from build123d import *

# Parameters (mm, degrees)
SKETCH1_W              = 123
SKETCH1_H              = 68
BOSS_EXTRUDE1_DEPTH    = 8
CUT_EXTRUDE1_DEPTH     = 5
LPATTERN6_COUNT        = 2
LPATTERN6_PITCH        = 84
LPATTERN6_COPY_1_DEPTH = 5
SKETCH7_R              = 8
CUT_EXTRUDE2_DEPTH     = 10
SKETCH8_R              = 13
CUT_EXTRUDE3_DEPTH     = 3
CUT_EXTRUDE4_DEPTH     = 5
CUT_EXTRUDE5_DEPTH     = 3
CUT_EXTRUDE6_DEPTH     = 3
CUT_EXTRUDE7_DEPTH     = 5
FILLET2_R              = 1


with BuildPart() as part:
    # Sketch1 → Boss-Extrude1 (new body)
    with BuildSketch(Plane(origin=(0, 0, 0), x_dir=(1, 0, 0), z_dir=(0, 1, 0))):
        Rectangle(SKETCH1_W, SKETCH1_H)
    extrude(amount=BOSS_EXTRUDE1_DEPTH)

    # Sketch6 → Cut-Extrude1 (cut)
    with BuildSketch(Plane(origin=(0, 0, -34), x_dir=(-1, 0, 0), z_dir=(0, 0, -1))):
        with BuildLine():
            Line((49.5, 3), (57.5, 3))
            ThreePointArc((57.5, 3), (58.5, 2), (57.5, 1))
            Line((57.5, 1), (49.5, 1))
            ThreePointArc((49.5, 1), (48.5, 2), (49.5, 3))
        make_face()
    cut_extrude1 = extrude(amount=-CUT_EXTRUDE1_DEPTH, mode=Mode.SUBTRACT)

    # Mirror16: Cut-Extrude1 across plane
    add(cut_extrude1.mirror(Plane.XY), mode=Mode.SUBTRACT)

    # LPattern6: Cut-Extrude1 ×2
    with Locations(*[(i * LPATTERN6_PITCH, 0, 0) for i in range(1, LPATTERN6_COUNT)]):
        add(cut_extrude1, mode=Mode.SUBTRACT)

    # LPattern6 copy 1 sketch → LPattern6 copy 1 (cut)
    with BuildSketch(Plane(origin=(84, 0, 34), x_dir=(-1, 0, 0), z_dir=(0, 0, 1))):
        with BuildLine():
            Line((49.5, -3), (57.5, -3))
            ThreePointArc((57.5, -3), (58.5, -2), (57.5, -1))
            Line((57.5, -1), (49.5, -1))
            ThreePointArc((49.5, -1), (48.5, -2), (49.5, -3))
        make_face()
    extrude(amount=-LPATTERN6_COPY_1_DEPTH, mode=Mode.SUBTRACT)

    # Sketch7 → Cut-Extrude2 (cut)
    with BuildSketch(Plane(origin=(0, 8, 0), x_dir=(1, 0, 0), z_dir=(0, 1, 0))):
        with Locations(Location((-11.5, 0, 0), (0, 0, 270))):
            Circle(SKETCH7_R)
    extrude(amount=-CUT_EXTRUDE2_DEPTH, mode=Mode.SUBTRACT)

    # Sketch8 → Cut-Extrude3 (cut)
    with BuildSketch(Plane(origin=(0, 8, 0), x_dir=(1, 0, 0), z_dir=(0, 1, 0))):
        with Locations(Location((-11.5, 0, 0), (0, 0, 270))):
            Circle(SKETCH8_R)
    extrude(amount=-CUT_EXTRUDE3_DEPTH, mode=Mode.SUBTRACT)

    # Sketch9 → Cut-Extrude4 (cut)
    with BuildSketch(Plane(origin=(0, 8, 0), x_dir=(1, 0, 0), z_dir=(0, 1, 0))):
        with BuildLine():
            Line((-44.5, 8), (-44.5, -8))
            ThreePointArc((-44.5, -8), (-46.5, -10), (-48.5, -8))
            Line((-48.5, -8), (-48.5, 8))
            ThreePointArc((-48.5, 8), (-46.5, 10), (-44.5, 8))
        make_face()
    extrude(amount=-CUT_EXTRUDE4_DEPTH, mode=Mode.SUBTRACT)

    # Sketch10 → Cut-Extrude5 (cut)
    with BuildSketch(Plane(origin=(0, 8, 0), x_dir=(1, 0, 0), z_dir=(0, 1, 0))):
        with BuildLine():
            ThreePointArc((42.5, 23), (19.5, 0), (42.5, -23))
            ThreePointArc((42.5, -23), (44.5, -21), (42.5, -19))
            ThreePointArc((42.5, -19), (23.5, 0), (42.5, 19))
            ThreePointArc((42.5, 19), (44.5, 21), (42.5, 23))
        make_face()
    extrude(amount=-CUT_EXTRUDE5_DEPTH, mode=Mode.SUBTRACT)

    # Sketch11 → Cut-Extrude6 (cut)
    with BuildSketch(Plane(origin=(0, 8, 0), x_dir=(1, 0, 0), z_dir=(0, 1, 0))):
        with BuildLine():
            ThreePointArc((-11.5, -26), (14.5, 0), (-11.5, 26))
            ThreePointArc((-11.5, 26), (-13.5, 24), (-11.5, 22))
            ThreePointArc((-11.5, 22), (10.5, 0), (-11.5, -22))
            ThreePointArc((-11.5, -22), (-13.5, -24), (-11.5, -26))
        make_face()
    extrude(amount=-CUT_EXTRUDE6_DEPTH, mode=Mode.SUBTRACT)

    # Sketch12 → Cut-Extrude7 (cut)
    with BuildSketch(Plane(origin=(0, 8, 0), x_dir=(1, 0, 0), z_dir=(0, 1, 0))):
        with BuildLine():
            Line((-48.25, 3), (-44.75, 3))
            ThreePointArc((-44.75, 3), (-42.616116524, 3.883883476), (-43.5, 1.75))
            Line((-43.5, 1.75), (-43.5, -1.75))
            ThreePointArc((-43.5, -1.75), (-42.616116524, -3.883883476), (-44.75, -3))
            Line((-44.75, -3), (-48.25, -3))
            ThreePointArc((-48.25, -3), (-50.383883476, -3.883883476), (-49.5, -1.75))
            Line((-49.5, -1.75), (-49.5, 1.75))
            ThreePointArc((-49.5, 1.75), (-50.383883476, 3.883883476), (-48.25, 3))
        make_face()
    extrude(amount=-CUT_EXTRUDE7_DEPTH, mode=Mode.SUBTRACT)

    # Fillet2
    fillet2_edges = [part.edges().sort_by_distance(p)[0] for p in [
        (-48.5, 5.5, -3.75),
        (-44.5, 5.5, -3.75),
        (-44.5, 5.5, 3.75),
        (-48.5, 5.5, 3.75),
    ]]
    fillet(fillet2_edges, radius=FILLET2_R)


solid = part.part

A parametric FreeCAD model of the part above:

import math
import FreeCAD as App
import Part
import Sketcher

V = App.Vector


def edges_at(feature, points):
    """Names of the edges that pass closest to the given points."""
    edges = feature.Shape.Edges
    near = lambda p: min(range(len(edges)), key=lambda i: edges[i].distToShape(Part.Vertex(*p))[0])
    return sorted({f"Edge{near(p) + 1}" for p in points})


def add_polygon(sketch, points):
    """Adds a closed chain of lines whose ends are joined by coincident constraints."""
    first, n = sketch.GeometryCount, len(points)
    for a, b in zip(points, points[1:] + points[:1]):
        sketch.addGeometry(Part.LineSegment(App.Vector(*a, 0), App.Vector(*b, 0)), False)
    for i in range(n):
        sketch.addConstraint(Sketcher.Constraint("Coincident", first + i, 2, first + (i + 1) % n, 1))

doc = App.newDocument("Part")
body = doc.addObject("PartDesign::Body", "Body")

# Sketch on XZ plane
sketch1 = body.newObject("Sketcher::SketchObject", "Sketch")
sketch1.AttachmentSupport = (doc.getObject("XZ_Plane"), [""])
sketch1.MapMode = "FlatFace"
add_polygon(sketch1, [(-62, -34), (-62, 34), (62, 34), (62, -34)])  # lines 0-3
sketch1.addConstraint(Sketcher.Constraint("Vertical", 0))
sketch1.addConstraint(Sketcher.Constraint("Horizontal", 1))
sketch1.addConstraint(Sketcher.Constraint("Vertical", 2))
sketch1.addConstraint(Sketcher.Constraint("Horizontal", 3))
sketch1.addConstraint(Sketcher.Constraint("Symmetric", 0, 2, 2, 2, -1, 1))
sketch1.addConstraint(Sketcher.Constraint("DistanceX", 1, 1, 1, 2, 123.0))
sketch1.addConstraint(Sketcher.Constraint("DistanceY", 0, 1, 0, 2, 68.0))
pad1 = body.newObject("PartDesign::Pad", "Pad")
pad1.Profile = sketch1
pad1.Length = 8
pad1.Reversed = True

# Sketch on XY plane
sketch2 = body.newObject("Sketcher::SketchObject", "Sketch001")
sketch2.AttachmentSupport = (doc.getObject("XY_Plane"), [""])
sketch2.MapMode = "FlatFace"
sketch2.AttachmentOffset = App.Placement(V(0, 0, -34), App.Rotation())
sketch2.addGeometry(Part.LineSegment(V(-57.5, 3, 0), V(-49.5, 3, 0)), False)
sketch2.addGeometry(Part.ArcOfCircle(Part.Circle(V(-49.5, 2, 0), V(0, 0, 1), 1), math.radians(-90), math.radians(90)), False)
sketch2.addGeometry(Part.LineSegment(V(-49.5, 1, 0), V(-57.5, 1, 0)), False)
sketch2.addGeometry(Part.ArcOfCircle(Part.Circle(V(-57.5, 2, 0), V(0, 0, 1), 1), math.radians(90), math.radians(270)), False)
sketch2.addConstraint(Sketcher.Constraint("Tangent", 0, 2, 1, 2))
sketch2.addConstraint(Sketcher.Constraint("Tangent", 1, 1, 2, 1))
sketch2.addConstraint(Sketcher.Constraint("Tangent", 2, 2, 3, 2))
sketch2.addConstraint(Sketcher.Constraint("Tangent", 3, 1, 0, 1))
sketch2.addConstraint(Sketcher.Constraint("Horizontal", 0))
sketch2.addConstraint(Sketcher.Constraint("Horizontal", 2))
sketch2.addConstraint(Sketcher.Constraint("Radius", 1, 1.0))
sketch2.addConstraint(Sketcher.Constraint("DistanceX", 0, 1, 0, 2, 8.0))
sketch2.addConstraint(Sketcher.Constraint("DistanceY", -1, 1, 1, 3, 2.0))
sketch2.addConstraint(Sketcher.Constraint("DistanceX", 1, 3, -1, 1, 49.5))
pocket1 = body.newObject("PartDesign::Pocket", "Pocket")
pocket1.Profile = sketch2
pocket1.Length = 5
pocket1.Reversed = True
doc.recompute()

mirrored = body.newObject("PartDesign::Mirrored", "Mirrored")
mirrored.Originals = [pocket1]
mirrored.MirrorPlane = (doc.getObject("XY_Plane"), [""])
body.Tip = mirrored
doc.recompute()

linearpattern = body.newObject("PartDesign::LinearPattern", "LinearPattern")
linearpattern.Originals = [pocket1]
linearpattern.Direction = (doc.getObject("X_Axis"), [""])
linearpattern.Mode = "offset"
linearpattern.Offset = 84
linearpattern.Occurrences = 2
body.Tip = linearpattern

# Sketch on XY plane
sketch3 = body.newObject("Sketcher::SketchObject", "Sketch002")
sketch3.AttachmentSupport = (doc.getObject("XY_Plane"), [""])
sketch3.MapMode = "FlatFace"
sketch3.AttachmentOffset = App.Placement(V(0, 0, 34), App.Rotation())
sketch3.addGeometry(Part.LineSegment(V(34.5, 3, 0), V(26.5, 3, 0)), False)
sketch3.addGeometry(Part.ArcOfCircle(Part.Circle(V(26.5, 2, 0), V(0, 0, 1), 1), math.radians(90), math.radians(270)), False)
sketch3.addGeometry(Part.LineSegment(V(26.5, 1, 0), V(34.5, 1, 0)), False)
sketch3.addGeometry(Part.ArcOfCircle(Part.Circle(V(34.5, 2, 0), V(0, 0, 1), 1), math.radians(-90), math.radians(90)), False)
sketch3.addConstraint(Sketcher.Constraint("Tangent", 0, 2, 1, 1))
sketch3.addConstraint(Sketcher.Constraint("Tangent", 1, 2, 2, 1))
sketch3.addConstraint(Sketcher.Constraint("Tangent", 2, 2, 3, 1))
sketch3.addConstraint(Sketcher.Constraint("Tangent", 3, 2, 0, 1))
sketch3.addConstraint(Sketcher.Constraint("Horizontal", 0))
sketch3.addConstraint(Sketcher.Constraint("Horizontal", 2))
sketch3.addConstraint(Sketcher.Constraint("Radius", 1, 1.0))
sketch3.addConstraint(Sketcher.Constraint("DistanceX", 0, 2, 0, 1, 8.0))
sketch3.addConstraint(Sketcher.Constraint("DistanceY", -1, 1, 1, 3, 2.0))
sketch3.addConstraint(Sketcher.Constraint("DistanceX", -1, 1, 1, 3, 26.5))
pocket2 = body.newObject("PartDesign::Pocket", "Pocket001")
pocket2.Profile = sketch3
pocket2.Length = 5

# Sketch on XZ plane
sketch4 = body.newObject("Sketcher::SketchObject", "Sketch003")
sketch4.AttachmentSupport = (doc.getObject("XZ_Plane"), [""])
sketch4.MapMode = "FlatFace"
sketch4.AttachmentOffset = App.Placement(V(0, 0, -8), App.Rotation())
sketch4.addGeometry(Part.Circle(V(-12, 0, 0), V(0, 0, 1), 8), False)
sketch4.addConstraint(Sketcher.Constraint("PointOnObject", 0, 3, -1))
sketch4.addConstraint(Sketcher.Constraint("Diameter", 0, 16.0))
sketch4.addConstraint(Sketcher.Constraint("DistanceX", 0, 3, -1, 1, 11.5))
pocket3 = body.newObject("PartDesign::Pocket", "Pocket002")
pocket3.Profile = sketch4
pocket3.Length = 10
pocket3.Reversed = True

# Sketch on XZ plane
sketch5 = body.newObject("Sketcher::SketchObject", "Sketch004")
sketch5.AttachmentSupport = (doc.getObject("XZ_Plane"), [""])
sketch5.MapMode = "FlatFace"
sketch5.AttachmentOffset = App.Placement(V(0, 0, -8), App.Rotation())
sketch5.addGeometry(Part.Circle(V(-12, 0, 0), V(0, 0, 1), 13), False)
sketch5.addConstraint(Sketcher.Constraint("PointOnObject", 0, 3, -1))
sketch5.addConstraint(Sketcher.Constraint("Diameter", 0, 26.0))
sketch5.addConstraint(Sketcher.Constraint("DistanceX", 0, 3, -1, 1, 11.5))
pocket4 = body.newObject("PartDesign::Pocket", "Pocket003")
pocket4.Profile = sketch5
pocket4.Length = 3
pocket4.Reversed = True

# Sketch on XZ plane
sketch6 = body.newObject("Sketcher::SketchObject", "Sketch005")
sketch6.AttachmentSupport = (doc.getObject("XZ_Plane"), [""])
sketch6.MapMode = "FlatFace"
sketch6.AttachmentOffset = App.Placement(V(0, 0, -8), App.Rotation())
sketch6.addGeometry(Part.LineSegment(V(-44.5, 8, 0), V(-44.5, -8, 0)), False)
sketch6.addGeometry(Part.ArcOfCircle(Part.Circle(V(-46.5, -8, 0), V(0, 0, 1), 2), math.radians(180), math.radians(360)), False)
sketch6.addGeometry(Part.LineSegment(V(-48.5, -8, 0), V(-48.5, 8, 0)), False)
sketch6.addGeometry(Part.ArcOfCircle(Part.Circle(V(-46.5, 8, 0), V(0, 0, 1), 2), math.radians(0), math.radians(180)), False)
sketch6.addConstraint(Sketcher.Constraint("Tangent", 0, 2, 1, 2))
sketch6.addConstraint(Sketcher.Constraint("Tangent", 1, 1, 2, 1))
sketch6.addConstraint(Sketcher.Constraint("Tangent", 2, 2, 3, 2))
sketch6.addConstraint(Sketcher.Constraint("Tangent", 3, 1, 0, 1))
sketch6.addConstraint(Sketcher.Constraint("Vertical", 0))
sketch6.addConstraint(Sketcher.Constraint("Vertical", 2))
sketch6.addConstraint(Sketcher.Constraint("Radius", 1, 2.0))
sketch6.addConstraint(Sketcher.Constraint("DistanceY", 0, 2, 0, 1, 16.0))
sketch6.addConstraint(Sketcher.Constraint("DistanceY", 1, 3, -1, 1, 8.0))
sketch6.addConstraint(Sketcher.Constraint("DistanceX", 1, 3, -1, 1, 46.5))
pocket5 = body.newObject("PartDesign::Pocket", "Pocket004")
pocket5.Profile = sketch6
pocket5.Length = 5
pocket5.Reversed = True

# Sketch on XZ plane
sketch7 = body.newObject("Sketcher::SketchObject", "Sketch006")
sketch7.AttachmentSupport = (doc.getObject("XZ_Plane"), [""])
sketch7.MapMode = "FlatFace"
sketch7.AttachmentOffset = App.Placement(V(0, 0, -8), App.Rotation())
sketch7.addGeometry(Part.ArcOfCircle(Part.Circle(V(42.5, 0, 0), V(0, 0, 1), 23), math.radians(90), math.radians(270)), False)
sketch7.addGeometry(Part.ArcOfCircle(Part.Circle(V(42.5, 21, 0), V(0, 0, 1), 2), math.radians(-90), math.radians(90)), False)
sketch7.addGeometry(Part.ArcOfCircle(Part.Circle(V(42.5, 0, 0), V(0, 0, 1), 19), math.radians(90), math.radians(270)), False)
sketch7.addGeometry(Part.ArcOfCircle(Part.Circle(V(42.5, -21, 0), V(0, 0, 1), 2), math.radians(-90), math.radians(90)), False)
sketch7.addConstraint(Sketcher.Constraint("Tangent", 0, 1, 1, 2))
sketch7.addConstraint(Sketcher.Constraint("Tangent", 1, 1, 2, 1))
sketch7.addConstraint(Sketcher.Constraint("Tangent", 2, 2, 3, 2))
sketch7.addConstraint(Sketcher.Constraint("Tangent", 3, 1, 0, 2))
sketch7.addConstraint(Sketcher.Constraint("Coincident", 2, 3, 0, 3))
sketch7.addConstraint(Sketcher.Constraint("Symmetric", 1, 3, 3, 3, -1))
sketch7.addConstraint(Sketcher.Constraint("Vertical", 0, 3, 1, 3))
sketch7.addConstraint(Sketcher.Constraint("Radius", 0, 23.0))
sketch7.addConstraint(Sketcher.Constraint("Radius", 1, 2.0))
sketch7.addConstraint(Sketcher.Constraint("DistanceX", -1, 1, 0, 3, 42.5))
pocket6 = body.newObject("PartDesign::Pocket", "Pocket005")
pocket6.Profile = sketch7
pocket6.Length = 3
pocket6.Reversed = True

# Sketch on XZ plane
sketch8 = body.newObject("Sketcher::SketchObject", "Sketch007")
sketch8.AttachmentSupport = (doc.getObject("XZ_Plane"), [""])
sketch8.MapMode = "FlatFace"
sketch8.AttachmentOffset = App.Placement(V(0, 0, -8), App.Rotation())
sketch8.addGeometry(Part.ArcOfCircle(Part.Circle(V(-11.5, 0, 0), V(0, 0, 1), 26), math.radians(-90), math.radians(90)), False)
sketch8.addGeometry(Part.ArcOfCircle(Part.Circle(V(-11.5, -24, 0), V(0, 0, 1), 2), math.radians(90), math.radians(270)), False)
sketch8.addGeometry(Part.ArcOfCircle(Part.Circle(V(-11.5, 0, 0), V(0, 0, 1), 22), math.radians(-90), math.radians(90)), False)
sketch8.addGeometry(Part.ArcOfCircle(Part.Circle(V(-11.5, 24, 0), V(0, 0, 1), 2), math.radians(90), math.radians(270)), False)
sketch8.addConstraint(Sketcher.Constraint("Tangent", 0, 1, 1, 2))
sketch8.addConstraint(Sketcher.Constraint("Tangent", 1, 1, 2, 1))
sketch8.addConstraint(Sketcher.Constraint("Tangent", 2, 2, 3, 2))
sketch8.addConstraint(Sketcher.Constraint("Tangent", 3, 1, 0, 2))
sketch8.addConstraint(Sketcher.Constraint("Coincident", 2, 3, 0, 3))
sketch8.addConstraint(Sketcher.Constraint("Symmetric", 1, 3, 3, 3, -1))
sketch8.addConstraint(Sketcher.Constraint("Vertical", 0, 3, 1, 3))
sketch8.addConstraint(Sketcher.Constraint("Radius", 0, 26.0))
sketch8.addConstraint(Sketcher.Constraint("Radius", 1, 2.0))
sketch8.addConstraint(Sketcher.Constraint("DistanceX", 0, 3, -1, 1, 11.5))
pocket7 = body.newObject("PartDesign::Pocket", "Pocket006")
pocket7.Profile = sketch8
pocket7.Length = 3
pocket7.Reversed = True

# Sketch on XZ plane
sketch9 = body.newObject("Sketcher::SketchObject", "Sketch008")
sketch9.AttachmentSupport = (doc.getObject("XZ_Plane"), [""])
sketch9.MapMode = "FlatFace"
sketch9.AttachmentOffset = App.Placement(V(0, 0, -8), App.Rotation())
sketch9.addGeometry(Part.LineSegment(V(-44.8, -3, 0), V(-48.2, -3, 0)), False)
sketch9.addGeometry(Part.ArcOfCircle(Part.Circle(V(-49.5, -3, 0), V(0, 0, 1), 1.2), math.radians(90), math.radians(360)), False)
sketch9.addGeometry(Part.LineSegment(V(-49.5, -1.8, 0), V(-49.5, 1.8, 0)), False)
sketch9.addGeometry(Part.ArcOfCircle(Part.Circle(V(-49.5, 3, 0), V(0, 0, 1), 1.2), math.radians(0), math.radians(270)), False)
sketch9.addGeometry(Part.LineSegment(V(-48.2, 3, 0), V(-44.8, 3, 0)), False)
sketch9.addGeometry(Part.ArcOfCircle(Part.Circle(V(-43.5, 3, 0), V(0, 0, 1), 1.2), math.radians(-90), math.radians(180)), False)
sketch9.addGeometry(Part.LineSegment(V(-43.5, 1.8, 0), V(-43.5, -1.8, 0)), False)
sketch9.addGeometry(Part.ArcOfCircle(Part.Circle(V(-43.5, -3, 0), V(0, 0, 1), 1.2), math.radians(180), math.radians(450)), False)
sketch9.addConstraint(Sketcher.Constraint("Coincident", 0, 2, 1, 2))
sketch9.addConstraint(Sketcher.Constraint("Coincident", 1, 1, 2, 1))
sketch9.addConstraint(Sketcher.Constraint("Coincident", 2, 2, 3, 2))
sketch9.addConstraint(Sketcher.Constraint("Coincident", 3, 1, 4, 1))
sketch9.addConstraint(Sketcher.Constraint("Coincident", 4, 2, 5, 2))
sketch9.addConstraint(Sketcher.Constraint("Coincident", 5, 1, 6, 1))
sketch9.addConstraint(Sketcher.Constraint("Coincident", 6, 2, 7, 2))
sketch9.addConstraint(Sketcher.Constraint("Coincident", 7, 1, 0, 1))
sketch9.addConstraint(Sketcher.Constraint("Horizontal", 0))
sketch9.addConstraint(Sketcher.Constraint("Vertical", 2))
sketch9.addConstraint(Sketcher.Constraint("Horizontal", 4))
sketch9.addConstraint(Sketcher.Constraint("Vertical", 6))
sketch9.addConstraint(Sketcher.Constraint("Equal", 1, 3))
sketch9.addConstraint(Sketcher.Constraint("Equal", 3, 5))
sketch9.addConstraint(Sketcher.Constraint("Equal", 5, 7))
sketch9.addConstraint(Sketcher.Constraint("Symmetric", 1, 3, 3, 3, -1))
sketch9.addConstraint(Sketcher.Constraint("Symmetric", 5, 3, 7, 3, -1))
sketch9.addConstraint(Sketcher.Constraint("Horizontal", 3, 3, 5, 3))
sketch9.addConstraint(Sketcher.Constraint("Horizontal", 7, 3, 0, 2))
sketch9.addConstraint(Sketcher.Constraint("Horizontal", 5, 3, 3, 1))
sketch9.addConstraint(Sketcher.Constraint("Vertical", 3, 3, 1, 1))
sketch9.addConstraint(Sketcher.Constraint("Vertical", 7, 3, 5, 1))
sketch9.addConstraint(Sketcher.Constraint("Equal", 4, 2))
sketch9.addConstraint(Sketcher.Constraint("Radius", 1, 1.25))
sketch9.addConstraint(Sketcher.Constraint("DistanceX", 0, 2, 0, 1, 3.5))
sketch9.addConstraint(Sketcher.Constraint("DistanceX", 1, 3, -1, 1, 49.5))
pocket8 = body.newObject("PartDesign::Pocket", "Pocket007")
pocket8.Profile = sketch9
pocket8.Length = 5
pocket8.Reversed = True
doc.recompute()

fillet = body.newObject("PartDesign::Fillet", "Fillet")
fillet.Base = (pocket8, edges_at(pocket8, [
    (-48.5, 5.5, -3.75),
    (-44.5, 5.5, -3.75),
    (-44.5, 5.5, 3.75),
    (-48.5, 5.5, 3.75),
]))
fillet.Radius = 1

doc.recompute()
